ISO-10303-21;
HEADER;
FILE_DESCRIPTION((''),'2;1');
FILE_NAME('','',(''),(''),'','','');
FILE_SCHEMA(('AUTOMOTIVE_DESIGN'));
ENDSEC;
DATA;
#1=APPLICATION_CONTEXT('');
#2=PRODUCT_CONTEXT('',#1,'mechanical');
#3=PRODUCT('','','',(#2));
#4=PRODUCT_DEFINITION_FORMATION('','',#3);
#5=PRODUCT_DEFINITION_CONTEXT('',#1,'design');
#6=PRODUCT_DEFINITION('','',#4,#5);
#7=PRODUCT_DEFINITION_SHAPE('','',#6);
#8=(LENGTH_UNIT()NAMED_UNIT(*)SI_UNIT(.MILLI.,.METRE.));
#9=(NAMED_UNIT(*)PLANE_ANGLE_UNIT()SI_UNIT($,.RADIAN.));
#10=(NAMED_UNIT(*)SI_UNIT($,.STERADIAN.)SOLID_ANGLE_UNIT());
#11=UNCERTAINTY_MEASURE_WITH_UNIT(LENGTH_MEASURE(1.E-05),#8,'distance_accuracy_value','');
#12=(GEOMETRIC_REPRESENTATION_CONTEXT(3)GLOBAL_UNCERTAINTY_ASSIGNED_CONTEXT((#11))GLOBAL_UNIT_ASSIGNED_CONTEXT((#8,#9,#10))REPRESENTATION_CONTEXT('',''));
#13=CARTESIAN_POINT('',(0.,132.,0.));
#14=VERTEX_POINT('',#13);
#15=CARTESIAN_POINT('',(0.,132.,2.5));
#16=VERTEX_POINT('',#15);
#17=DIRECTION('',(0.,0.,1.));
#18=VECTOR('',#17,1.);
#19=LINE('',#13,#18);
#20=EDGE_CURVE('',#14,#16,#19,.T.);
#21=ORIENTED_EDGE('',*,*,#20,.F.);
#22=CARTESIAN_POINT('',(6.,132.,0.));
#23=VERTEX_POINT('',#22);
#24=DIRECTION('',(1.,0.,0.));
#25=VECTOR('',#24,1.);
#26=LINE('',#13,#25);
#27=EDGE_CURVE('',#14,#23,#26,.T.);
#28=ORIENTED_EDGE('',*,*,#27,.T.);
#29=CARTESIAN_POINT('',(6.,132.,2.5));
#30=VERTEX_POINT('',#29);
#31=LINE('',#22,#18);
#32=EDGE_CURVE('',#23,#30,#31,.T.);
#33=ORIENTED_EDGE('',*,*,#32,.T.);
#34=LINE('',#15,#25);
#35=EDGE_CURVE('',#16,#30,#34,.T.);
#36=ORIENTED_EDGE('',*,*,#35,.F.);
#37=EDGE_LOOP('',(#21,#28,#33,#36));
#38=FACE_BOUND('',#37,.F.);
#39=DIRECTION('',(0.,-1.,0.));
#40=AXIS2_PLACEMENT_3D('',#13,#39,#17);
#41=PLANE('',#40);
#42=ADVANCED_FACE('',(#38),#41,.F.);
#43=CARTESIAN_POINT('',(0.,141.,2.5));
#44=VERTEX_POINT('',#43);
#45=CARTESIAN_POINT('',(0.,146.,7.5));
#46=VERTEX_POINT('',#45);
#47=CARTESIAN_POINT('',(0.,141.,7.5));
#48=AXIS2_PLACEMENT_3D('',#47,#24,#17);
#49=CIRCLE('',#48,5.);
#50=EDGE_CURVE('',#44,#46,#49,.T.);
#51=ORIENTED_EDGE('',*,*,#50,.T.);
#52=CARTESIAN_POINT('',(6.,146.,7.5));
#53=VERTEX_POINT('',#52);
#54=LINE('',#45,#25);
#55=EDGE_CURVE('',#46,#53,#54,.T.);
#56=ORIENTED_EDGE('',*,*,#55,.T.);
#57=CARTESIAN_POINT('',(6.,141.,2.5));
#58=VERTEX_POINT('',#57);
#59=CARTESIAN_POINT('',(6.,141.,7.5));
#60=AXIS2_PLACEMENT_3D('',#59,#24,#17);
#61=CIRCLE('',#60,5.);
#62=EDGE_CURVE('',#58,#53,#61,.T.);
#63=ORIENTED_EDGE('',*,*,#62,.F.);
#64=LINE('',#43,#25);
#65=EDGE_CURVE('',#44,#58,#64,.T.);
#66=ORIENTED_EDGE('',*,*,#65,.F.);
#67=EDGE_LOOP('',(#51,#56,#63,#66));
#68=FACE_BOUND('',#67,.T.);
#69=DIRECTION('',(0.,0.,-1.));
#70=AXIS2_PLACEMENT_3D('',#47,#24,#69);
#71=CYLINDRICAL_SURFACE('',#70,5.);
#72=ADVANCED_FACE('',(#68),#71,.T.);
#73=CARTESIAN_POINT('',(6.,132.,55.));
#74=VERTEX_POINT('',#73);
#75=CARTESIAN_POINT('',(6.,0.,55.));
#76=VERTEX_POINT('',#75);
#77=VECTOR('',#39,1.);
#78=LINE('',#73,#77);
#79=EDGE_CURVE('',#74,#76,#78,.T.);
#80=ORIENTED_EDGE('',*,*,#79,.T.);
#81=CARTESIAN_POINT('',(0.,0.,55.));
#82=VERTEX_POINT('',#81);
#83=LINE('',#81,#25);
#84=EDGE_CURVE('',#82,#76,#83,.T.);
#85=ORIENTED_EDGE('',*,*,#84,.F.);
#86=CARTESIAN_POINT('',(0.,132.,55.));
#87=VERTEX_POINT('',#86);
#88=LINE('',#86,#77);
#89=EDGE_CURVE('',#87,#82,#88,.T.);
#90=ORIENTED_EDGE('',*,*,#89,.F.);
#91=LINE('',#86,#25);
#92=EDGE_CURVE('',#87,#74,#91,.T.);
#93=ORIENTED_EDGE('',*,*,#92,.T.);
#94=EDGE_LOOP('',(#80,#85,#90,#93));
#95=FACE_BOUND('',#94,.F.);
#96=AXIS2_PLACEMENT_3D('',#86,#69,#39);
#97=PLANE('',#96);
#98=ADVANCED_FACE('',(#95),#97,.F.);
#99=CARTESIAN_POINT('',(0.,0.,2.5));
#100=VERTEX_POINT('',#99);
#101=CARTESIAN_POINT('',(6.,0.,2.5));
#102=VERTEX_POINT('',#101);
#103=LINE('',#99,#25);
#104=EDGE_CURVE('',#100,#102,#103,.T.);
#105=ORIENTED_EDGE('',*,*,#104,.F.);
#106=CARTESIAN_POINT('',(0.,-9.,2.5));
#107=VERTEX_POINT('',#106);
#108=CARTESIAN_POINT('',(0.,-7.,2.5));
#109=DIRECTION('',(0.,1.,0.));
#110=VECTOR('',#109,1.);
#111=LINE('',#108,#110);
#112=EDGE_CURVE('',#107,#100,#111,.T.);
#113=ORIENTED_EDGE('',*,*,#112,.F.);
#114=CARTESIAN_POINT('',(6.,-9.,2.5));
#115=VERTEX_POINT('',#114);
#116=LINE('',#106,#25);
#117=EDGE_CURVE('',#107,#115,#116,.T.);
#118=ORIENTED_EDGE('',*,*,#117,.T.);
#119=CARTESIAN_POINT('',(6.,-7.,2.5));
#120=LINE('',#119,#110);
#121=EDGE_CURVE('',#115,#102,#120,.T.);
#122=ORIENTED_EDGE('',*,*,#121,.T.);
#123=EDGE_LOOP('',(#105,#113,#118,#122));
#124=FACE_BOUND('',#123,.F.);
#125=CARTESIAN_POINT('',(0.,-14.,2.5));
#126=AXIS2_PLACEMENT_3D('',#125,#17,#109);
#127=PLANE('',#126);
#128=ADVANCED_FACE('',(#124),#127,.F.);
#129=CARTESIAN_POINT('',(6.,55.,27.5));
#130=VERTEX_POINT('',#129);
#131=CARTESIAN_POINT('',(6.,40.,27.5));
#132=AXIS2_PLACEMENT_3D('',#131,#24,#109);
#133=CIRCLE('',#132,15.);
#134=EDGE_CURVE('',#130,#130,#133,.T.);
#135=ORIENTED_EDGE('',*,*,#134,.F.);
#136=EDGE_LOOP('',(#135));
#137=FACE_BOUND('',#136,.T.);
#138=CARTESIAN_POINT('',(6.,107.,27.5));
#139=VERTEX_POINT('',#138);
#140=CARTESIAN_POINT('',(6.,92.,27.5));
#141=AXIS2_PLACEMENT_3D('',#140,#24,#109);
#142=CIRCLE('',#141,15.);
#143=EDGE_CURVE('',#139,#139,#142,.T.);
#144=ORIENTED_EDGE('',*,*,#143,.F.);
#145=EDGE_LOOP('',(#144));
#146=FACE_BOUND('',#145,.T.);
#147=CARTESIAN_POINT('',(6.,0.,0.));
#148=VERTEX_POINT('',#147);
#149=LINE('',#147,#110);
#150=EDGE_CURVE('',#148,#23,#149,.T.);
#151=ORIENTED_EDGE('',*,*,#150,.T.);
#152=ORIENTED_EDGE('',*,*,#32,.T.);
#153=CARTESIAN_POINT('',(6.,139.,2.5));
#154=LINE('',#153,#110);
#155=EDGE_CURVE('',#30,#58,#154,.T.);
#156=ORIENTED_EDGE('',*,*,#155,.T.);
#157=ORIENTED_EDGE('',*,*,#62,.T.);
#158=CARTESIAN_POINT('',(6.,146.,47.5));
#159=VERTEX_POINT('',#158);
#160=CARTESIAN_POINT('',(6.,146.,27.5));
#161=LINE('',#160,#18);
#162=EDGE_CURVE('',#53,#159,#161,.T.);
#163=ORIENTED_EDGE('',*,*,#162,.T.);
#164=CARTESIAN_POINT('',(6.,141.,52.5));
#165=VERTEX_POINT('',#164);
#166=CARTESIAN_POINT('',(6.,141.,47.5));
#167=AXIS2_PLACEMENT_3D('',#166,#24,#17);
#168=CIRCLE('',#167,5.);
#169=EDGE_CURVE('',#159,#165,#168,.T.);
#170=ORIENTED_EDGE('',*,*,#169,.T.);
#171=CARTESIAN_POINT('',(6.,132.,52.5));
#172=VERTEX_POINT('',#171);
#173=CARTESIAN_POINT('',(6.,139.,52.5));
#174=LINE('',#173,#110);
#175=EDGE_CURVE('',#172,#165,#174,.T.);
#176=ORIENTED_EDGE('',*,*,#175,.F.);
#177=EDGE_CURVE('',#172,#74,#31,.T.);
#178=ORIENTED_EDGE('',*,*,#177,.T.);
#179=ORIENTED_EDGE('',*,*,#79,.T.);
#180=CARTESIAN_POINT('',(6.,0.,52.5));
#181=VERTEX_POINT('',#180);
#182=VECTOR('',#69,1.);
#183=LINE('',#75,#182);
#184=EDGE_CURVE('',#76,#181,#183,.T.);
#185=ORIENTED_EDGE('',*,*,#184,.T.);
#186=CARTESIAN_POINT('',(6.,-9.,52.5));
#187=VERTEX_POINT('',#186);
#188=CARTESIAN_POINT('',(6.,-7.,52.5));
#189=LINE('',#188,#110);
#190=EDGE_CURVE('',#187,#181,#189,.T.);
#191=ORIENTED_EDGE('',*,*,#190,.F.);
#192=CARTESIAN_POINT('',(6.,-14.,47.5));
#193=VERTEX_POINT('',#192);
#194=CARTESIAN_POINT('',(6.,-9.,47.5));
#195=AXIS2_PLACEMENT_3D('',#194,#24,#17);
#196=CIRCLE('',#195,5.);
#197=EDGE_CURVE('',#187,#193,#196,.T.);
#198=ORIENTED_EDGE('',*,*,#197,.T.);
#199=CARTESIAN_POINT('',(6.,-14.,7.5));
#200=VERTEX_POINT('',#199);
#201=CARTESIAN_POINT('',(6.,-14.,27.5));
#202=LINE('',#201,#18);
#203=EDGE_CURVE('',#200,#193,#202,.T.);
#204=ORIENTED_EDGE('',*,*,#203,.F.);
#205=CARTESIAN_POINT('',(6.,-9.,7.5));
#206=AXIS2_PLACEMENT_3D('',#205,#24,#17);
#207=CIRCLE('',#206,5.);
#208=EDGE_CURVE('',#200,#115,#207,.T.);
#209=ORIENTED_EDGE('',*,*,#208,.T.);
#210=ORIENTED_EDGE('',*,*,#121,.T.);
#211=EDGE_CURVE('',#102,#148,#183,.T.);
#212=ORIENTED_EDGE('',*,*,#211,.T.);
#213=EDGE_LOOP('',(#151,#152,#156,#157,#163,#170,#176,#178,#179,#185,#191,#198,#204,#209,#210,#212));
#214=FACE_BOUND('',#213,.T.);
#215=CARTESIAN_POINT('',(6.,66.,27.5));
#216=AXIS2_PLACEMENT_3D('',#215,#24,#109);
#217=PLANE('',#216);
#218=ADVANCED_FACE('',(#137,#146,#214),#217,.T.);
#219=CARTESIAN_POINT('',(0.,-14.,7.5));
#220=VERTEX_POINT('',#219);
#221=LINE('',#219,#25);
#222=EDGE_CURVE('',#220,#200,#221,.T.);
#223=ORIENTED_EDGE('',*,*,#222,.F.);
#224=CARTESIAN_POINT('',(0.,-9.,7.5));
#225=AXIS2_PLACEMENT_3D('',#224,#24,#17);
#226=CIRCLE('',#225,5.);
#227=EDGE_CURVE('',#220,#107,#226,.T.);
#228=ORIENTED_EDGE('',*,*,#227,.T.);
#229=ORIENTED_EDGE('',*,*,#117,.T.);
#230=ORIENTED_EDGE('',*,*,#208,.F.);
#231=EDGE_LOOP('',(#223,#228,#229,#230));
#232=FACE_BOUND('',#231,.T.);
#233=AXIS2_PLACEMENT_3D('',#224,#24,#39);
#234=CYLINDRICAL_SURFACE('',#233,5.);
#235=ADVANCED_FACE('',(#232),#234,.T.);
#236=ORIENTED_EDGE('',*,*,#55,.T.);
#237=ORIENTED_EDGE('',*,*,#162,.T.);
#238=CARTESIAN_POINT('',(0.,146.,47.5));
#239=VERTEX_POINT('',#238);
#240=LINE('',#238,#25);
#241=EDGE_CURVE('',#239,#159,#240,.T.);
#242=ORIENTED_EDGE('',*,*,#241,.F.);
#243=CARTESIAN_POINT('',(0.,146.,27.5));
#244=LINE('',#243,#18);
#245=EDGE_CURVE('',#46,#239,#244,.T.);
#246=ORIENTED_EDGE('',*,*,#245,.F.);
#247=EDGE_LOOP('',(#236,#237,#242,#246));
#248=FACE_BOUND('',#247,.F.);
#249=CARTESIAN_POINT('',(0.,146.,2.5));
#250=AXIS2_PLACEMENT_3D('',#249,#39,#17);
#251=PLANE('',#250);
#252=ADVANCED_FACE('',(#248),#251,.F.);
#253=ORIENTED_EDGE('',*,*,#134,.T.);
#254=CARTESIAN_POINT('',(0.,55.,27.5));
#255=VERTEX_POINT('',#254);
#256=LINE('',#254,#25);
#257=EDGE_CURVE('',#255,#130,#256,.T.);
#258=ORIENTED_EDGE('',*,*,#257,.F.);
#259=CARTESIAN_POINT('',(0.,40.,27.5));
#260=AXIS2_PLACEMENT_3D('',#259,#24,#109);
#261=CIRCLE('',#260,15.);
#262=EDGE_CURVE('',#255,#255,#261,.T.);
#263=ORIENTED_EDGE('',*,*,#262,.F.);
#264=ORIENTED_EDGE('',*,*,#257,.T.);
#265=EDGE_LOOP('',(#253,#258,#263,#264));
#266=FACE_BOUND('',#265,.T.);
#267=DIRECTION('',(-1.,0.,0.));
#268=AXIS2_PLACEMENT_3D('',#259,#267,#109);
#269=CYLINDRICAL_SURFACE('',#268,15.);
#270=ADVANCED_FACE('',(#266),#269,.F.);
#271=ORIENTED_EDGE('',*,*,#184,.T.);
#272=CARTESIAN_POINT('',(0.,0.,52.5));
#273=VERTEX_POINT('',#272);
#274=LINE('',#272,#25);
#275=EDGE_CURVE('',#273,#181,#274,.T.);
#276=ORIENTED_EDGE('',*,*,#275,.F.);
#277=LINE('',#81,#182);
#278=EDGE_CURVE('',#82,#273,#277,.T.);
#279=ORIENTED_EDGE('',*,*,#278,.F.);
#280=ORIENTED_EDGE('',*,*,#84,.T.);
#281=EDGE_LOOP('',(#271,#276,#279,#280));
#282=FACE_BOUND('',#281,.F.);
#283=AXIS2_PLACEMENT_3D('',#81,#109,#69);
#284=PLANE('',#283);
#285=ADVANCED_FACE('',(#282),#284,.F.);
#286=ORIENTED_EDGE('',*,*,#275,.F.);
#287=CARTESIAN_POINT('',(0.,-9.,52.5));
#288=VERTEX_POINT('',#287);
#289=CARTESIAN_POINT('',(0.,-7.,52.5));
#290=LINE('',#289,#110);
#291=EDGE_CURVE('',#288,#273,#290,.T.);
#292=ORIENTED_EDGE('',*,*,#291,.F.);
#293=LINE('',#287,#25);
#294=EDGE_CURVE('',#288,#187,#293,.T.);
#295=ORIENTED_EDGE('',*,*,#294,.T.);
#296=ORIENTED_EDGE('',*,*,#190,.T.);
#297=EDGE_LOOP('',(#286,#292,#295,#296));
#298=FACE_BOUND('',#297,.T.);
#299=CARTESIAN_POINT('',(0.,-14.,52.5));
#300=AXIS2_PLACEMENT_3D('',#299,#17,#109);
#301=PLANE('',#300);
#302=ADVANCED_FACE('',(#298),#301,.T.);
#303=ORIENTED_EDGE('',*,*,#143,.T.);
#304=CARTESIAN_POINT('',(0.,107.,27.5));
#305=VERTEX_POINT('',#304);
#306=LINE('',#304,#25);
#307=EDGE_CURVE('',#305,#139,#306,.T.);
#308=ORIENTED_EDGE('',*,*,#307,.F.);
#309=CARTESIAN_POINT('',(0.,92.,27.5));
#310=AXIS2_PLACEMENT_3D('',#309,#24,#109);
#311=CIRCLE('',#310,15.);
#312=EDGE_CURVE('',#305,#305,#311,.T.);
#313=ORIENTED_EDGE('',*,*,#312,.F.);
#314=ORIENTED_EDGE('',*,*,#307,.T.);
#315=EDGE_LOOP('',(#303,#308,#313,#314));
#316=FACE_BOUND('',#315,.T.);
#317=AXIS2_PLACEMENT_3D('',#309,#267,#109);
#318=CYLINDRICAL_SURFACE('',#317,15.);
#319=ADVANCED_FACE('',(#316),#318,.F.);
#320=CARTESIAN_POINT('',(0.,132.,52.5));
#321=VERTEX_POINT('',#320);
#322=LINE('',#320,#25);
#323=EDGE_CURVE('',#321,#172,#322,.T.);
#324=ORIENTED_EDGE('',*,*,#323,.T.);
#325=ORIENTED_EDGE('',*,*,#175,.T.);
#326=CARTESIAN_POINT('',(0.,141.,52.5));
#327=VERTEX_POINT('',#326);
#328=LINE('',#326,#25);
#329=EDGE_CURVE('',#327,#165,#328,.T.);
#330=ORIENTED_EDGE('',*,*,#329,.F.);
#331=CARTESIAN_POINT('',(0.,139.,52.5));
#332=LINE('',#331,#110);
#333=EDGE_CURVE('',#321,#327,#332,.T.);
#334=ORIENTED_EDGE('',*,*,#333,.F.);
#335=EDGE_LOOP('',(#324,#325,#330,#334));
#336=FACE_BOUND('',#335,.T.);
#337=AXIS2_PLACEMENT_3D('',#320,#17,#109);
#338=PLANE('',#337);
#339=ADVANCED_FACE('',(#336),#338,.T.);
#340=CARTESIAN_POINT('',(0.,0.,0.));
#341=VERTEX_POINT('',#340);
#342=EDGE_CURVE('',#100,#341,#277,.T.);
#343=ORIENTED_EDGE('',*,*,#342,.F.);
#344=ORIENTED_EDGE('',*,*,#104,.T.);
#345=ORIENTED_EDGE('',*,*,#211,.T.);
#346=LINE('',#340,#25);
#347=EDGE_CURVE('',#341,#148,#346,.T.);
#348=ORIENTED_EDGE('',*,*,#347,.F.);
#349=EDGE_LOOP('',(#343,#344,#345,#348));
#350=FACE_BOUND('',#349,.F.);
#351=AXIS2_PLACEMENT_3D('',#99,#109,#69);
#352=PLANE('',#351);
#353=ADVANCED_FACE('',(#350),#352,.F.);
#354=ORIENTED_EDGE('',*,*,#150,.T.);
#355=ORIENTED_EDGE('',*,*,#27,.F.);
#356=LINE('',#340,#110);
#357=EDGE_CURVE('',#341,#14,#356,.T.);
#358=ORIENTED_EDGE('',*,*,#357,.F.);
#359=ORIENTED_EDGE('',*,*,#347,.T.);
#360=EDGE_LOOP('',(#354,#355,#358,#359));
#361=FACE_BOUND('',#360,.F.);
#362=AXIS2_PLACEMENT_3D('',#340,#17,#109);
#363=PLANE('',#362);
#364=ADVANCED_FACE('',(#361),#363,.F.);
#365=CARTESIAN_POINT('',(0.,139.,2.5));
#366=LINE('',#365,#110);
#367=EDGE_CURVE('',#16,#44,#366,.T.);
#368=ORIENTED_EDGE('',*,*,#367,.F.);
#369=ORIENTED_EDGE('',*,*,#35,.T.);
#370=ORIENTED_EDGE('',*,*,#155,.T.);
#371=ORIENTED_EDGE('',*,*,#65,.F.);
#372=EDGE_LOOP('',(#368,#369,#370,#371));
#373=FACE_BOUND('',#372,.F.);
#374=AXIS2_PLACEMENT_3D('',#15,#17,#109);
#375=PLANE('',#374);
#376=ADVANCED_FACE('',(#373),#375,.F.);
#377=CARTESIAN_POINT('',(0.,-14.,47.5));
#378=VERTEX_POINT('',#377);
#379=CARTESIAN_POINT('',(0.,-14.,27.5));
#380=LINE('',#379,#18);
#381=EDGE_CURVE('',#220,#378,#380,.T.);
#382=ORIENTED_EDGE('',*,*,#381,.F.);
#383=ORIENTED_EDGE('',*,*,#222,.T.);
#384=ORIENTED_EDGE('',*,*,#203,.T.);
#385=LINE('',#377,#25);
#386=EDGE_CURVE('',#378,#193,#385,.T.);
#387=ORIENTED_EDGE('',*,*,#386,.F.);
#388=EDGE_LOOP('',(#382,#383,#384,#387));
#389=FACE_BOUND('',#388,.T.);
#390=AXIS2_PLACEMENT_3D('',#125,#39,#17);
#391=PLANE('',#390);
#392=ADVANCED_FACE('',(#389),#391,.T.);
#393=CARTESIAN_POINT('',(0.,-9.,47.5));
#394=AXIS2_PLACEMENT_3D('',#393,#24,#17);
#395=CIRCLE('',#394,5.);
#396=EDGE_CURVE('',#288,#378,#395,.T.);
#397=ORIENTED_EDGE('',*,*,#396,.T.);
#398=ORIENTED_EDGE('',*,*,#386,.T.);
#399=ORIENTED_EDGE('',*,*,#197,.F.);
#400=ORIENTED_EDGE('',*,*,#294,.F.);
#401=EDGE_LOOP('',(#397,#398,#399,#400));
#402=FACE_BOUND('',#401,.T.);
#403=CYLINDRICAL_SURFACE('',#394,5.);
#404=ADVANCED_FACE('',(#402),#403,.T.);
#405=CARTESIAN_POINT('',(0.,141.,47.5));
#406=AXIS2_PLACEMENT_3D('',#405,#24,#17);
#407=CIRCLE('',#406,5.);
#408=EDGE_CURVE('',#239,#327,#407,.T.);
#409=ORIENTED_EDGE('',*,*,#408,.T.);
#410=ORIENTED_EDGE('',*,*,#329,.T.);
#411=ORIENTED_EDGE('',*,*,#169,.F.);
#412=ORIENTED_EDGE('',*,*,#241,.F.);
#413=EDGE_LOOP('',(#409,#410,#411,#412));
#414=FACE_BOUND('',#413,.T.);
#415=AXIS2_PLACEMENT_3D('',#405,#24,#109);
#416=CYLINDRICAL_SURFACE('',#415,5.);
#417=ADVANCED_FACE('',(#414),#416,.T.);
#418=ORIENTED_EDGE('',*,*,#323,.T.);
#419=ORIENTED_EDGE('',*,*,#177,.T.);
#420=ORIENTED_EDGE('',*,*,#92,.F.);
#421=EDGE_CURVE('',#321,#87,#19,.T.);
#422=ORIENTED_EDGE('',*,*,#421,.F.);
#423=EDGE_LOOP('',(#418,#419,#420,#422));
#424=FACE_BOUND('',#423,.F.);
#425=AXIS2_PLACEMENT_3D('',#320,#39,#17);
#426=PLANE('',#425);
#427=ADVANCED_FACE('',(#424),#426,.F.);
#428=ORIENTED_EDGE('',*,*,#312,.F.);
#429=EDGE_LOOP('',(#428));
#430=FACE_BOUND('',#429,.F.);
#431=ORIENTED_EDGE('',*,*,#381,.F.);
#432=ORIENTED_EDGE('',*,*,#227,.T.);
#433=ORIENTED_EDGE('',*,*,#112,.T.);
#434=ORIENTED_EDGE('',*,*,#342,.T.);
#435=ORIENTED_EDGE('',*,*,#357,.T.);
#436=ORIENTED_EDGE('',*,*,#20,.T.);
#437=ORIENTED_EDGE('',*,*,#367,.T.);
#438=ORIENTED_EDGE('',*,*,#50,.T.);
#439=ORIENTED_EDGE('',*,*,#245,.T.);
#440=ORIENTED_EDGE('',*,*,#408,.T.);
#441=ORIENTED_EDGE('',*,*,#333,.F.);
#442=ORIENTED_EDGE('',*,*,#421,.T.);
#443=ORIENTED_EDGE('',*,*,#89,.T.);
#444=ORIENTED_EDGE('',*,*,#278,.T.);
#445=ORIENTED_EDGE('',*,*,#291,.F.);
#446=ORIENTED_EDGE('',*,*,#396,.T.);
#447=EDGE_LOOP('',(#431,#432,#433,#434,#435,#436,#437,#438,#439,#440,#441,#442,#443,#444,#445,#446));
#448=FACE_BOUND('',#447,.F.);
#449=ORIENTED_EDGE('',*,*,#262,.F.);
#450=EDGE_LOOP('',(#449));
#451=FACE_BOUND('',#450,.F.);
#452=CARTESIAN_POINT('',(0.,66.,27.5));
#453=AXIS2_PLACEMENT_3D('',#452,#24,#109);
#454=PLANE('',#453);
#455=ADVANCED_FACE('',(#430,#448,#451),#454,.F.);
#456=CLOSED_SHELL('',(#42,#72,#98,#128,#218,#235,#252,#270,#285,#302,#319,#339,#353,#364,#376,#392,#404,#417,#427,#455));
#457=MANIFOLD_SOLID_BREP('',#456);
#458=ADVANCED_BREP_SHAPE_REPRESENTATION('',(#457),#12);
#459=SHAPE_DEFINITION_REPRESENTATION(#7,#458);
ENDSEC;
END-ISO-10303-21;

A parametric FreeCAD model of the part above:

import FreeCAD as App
import Part
import Sketcher
from FreeCAD import Vector


def edges_at(feature, points):
    """Names of the edges that pass closest to the given points."""
    edges = feature.Shape.Edges
    near = lambda p: min(range(len(edges)), key=lambda i: edges[i].distToShape(Part.Vertex(*p))[0])
    return sorted({f"Edge{near(p) + 1}" for p in points})


def add_polygon(sketch, points):
    """Adds a closed chain of lines whose ends are joined by coincident constraints."""
    first, n = sketch.GeometryCount, len(points)
    for a, b in zip(points, points[1:] + points[:1]):
        sketch.addGeometry(Part.LineSegment(App.Vector(*a, 0), App.Vector(*b, 0)), False)
    for i in range(n):
        sketch.addConstraint(Sketcher.Constraint("Coincident", first + i, 2, first + (i + 1) % n, 1))

doc = App.newDocument("Part")
body = doc.addObject("PartDesign::Body", "Body")

# Sketch on YZ plane
sketch1 = body.newObject("Sketcher::SketchObject", "Sketch")
sketch1.AttachmentSupport = (doc.getObject("YZ_Plane"), [""])
sketch1.MapMode = "FlatFace"
add_polygon(sketch1, [(132, 55), (0, 55), (0, 52.5), (-14, 52.5), (-14, 2.5), (0, 2.5), (0, 0), (132, 0), (132, 2.5), (146, 2.5), (146, 52.5), (132, 52.5)])  # lines 0-11
sketch1.addGeometry(Part.Circle(Vector(40, 27.5, 0), Vector(0, 0, 1), 15), False)  # 12
sketch1.addGeometry(Part.Circle(Vector(92, 27.5, 0), Vector(0, 0, 1), 15), False)  # 13
sketch1.addConstraint(Sketcher.Constraint("Horizontal", 0))
sketch1.addConstraint(Sketcher.Constraint("Vertical", 1))
sketch1.addConstraint(Sketcher.Constraint("Horizontal", 2))
sketch1.addConstraint(Sketcher.Constraint("Vertical", 3))
sketch1.addConstraint(Sketcher.Constraint("Horizontal", 4))
sketch1.addConstraint(Sketcher.Constraint("Vertical", 5))
sketch1.addConstraint(Sketcher.Constraint("Horizontal", 6))
sketch1.addConstraint(Sketcher.Constraint("Vertical", 7))
sketch1.addConstraint(Sketcher.Constraint("Horizontal", 8))
sketch1.addConstraint(Sketcher.Constraint("Vertical", 9))
sketch1.addConstraint(Sketcher.Constraint("Horizontal", 10))
sketch1.addConstraint(Sketcher.Constraint("Vertical", 11))
sketch1.addConstraint(Sketcher.Constraint("Coincident", 5, 2, -1, 1))
sketch1.addConstraint(Sketcher.Constraint("Equal", 12, 13))
sketch1.addConstraint(Sketcher.Constraint("PointOnObject", 0, 2, -2))
sketch1.addConstraint(Sketcher.Constraint("Horizontal", 12, 3, 13, 3))
sketch1.addConstraint(Sketcher.Constraint("Horizontal", 4, 2, 7, 2))
sketch1.addConstraint(Sketcher.Constraint("Horizontal", 2, 2, 9, 2))
sketch1.addConstraint(Sketcher.Constraint("Vertical", 7, 2, 10, 2))
sketch1.addConstraint(Sketcher.Constraint("Equal", 4, 8))
sketch1.addConstraint(Sketcher.Constraint("Equal", 1, 5))
sketch1.addConstraint(Sketcher.Constraint("Diameter", 12, 30.0))
sketch1.addConstraint(Sketcher.Constraint("DistanceX", 0, 2, 0, 1, 132.0))
sketch1.addConstraint(Sketcher.Constraint("DistanceX", 2, 2, 2, 1, 14.0))
sketch1.addConstraint(Sketcher.Constraint("DistanceY", 3, 2, 3, 1, 50.0))
sketch1.addConstraint(Sketcher.Constraint("DistanceY", 1, 2, 1, 1, 2.5))
sketch1.addConstraint(Sketcher.Constraint("DistanceX", -1, 1, 12, 3, 40.0))
sketch1.addConstraint(Sketcher.Constraint("DistanceX", -1, 1, 13, 3, 92.0))
sketch1.addConstraint(Sketcher.Constraint("DistanceY", 12, 3, 1, 2, 25.0))
pad1 = body.newObject("PartDesign::Pad", "Pad")
pad1.Profile = sketch1
pad1.Length = 6
doc.recompute()

fillet = body.newObject("PartDesign::Fillet", "Fillet")
fillet.Base = (pad1, edges_at(pad1, [
    (3, -14, 2.5),
    (3, -14, 52.5),
    (3, 146, 52.5),
    (3, 146, 2.5),
]))
fillet.Radius = 5

doc.recompute()
